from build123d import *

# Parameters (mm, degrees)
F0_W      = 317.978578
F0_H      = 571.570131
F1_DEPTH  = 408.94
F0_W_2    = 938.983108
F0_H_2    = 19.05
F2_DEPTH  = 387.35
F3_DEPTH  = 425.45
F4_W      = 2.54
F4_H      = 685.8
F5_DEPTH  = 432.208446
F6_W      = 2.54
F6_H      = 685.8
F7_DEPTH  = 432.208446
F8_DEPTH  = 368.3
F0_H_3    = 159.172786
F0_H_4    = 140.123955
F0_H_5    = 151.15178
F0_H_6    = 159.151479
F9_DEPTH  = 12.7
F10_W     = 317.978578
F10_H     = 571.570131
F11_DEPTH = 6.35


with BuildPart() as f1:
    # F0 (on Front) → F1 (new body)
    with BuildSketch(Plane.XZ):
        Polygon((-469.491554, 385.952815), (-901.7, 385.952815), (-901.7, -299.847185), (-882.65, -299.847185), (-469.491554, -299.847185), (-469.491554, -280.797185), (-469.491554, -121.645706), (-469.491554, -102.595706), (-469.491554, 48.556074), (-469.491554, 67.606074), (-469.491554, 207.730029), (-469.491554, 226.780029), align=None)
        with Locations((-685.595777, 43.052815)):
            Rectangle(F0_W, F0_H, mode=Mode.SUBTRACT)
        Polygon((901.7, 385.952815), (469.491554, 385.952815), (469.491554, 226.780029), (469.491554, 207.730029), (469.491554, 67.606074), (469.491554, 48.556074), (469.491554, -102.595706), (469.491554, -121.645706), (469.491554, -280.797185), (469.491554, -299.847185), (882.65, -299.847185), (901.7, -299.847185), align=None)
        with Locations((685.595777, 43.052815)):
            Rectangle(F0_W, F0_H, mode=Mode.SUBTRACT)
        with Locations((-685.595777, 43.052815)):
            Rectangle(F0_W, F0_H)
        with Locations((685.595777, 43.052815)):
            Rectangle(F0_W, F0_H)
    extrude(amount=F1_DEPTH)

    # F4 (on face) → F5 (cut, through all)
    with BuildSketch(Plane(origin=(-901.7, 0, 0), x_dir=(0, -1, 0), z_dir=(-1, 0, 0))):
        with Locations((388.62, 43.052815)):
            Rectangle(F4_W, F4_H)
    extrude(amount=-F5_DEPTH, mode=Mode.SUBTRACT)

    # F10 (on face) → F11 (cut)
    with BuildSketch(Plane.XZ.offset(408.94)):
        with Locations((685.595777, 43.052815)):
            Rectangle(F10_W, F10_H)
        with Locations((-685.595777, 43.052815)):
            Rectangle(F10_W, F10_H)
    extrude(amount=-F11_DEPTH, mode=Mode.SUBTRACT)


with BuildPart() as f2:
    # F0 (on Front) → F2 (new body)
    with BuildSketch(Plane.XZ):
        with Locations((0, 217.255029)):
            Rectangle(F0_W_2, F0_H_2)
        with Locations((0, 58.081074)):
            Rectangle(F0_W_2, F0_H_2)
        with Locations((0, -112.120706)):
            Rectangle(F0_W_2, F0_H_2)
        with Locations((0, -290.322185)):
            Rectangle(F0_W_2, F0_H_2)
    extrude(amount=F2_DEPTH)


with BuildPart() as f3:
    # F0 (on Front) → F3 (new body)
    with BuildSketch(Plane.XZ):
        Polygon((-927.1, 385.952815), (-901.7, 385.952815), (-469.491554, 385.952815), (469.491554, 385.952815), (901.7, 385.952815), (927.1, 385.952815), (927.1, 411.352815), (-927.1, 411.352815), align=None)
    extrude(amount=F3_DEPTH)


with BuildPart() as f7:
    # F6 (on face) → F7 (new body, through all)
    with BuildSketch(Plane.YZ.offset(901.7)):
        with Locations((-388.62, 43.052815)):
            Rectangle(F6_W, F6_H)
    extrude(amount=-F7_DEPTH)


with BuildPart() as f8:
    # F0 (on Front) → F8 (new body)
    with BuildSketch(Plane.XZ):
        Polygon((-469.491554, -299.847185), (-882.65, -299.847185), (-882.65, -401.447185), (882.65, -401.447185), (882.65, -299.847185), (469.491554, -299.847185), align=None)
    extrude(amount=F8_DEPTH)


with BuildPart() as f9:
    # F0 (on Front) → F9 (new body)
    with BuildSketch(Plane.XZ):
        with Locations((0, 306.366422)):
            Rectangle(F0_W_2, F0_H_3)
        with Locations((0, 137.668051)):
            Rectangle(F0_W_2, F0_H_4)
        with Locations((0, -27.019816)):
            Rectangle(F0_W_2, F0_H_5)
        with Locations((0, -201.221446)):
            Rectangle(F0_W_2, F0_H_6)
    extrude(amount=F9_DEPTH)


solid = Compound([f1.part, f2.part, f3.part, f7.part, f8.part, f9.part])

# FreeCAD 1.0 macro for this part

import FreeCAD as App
import Part
import Sketcher
Q = App.Units.Quantity


def add_polygon(sketch, points):
    """Adds a closed chain of lines whose ends are joined by coincident constraints."""
    first, n = sketch.GeometryCount, len(points)
    for a, b in zip(points, points[1:] + points[:1]):
        sketch.addGeometry(Part.LineSegment(App.Vector(*a, 0), App.Vector(*b, 0)), False)
    for i in range(n):
        sketch.addConstraint(Sketcher.Constraint("Coincident", first + i, 2, first + (i + 1) % n, 1))

doc = App.newDocument("Part")
body = doc.addObject("PartDesign::Body", "Body")
body.AllowCompound = True

sketch1 = body.newObject("Sketcher::SketchObject", "Sketch")
sketch1.AttachmentSupport = (doc.getObject("XZ_Plane"), [""])
sketch1.MapMode = "FlatFace"
add_polygon(sketch1, [(-469, 386), (-902, 386), (-902, -300), (-469, -300)])
add_polygon(sketch1, [(902, 386), (469, 386), (469, -300), (902, -300)])
sketch1.addConstraint(Sketcher.Constraint("Horizontal", 0))
sketch1.addConstraint(Sketcher.Constraint("Vertical", 1))
sketch1.addConstraint(Sketcher.Constraint("Horizontal", 2))
sketch1.addConstraint(Sketcher.Constraint("Vertical", 3))
sketch1.addConstraint(Sketcher.Constraint("Horizontal", 4))
sketch1.addConstraint(Sketcher.Constraint("Vertical", 5))
sketch1.addConstraint(Sketcher.Constraint("Horizontal", 6))
sketch1.addConstraint(Sketcher.Constraint("Vertical", 7))
sketch1.addConstraint(Sketcher.Constraint("Symmetric", 3, 2, 4, 2, -2))
sketch1.addConstraint(Sketcher.Constraint("Symmetric", 1, 2, 6, 2, -2))
sketch1.addConstraint(Sketcher.Constraint("DistanceY", 1, 2, 1, 1, Q("27 in")))
sketch1.addConstraint(Sketcher.Constraint("DistanceX", 1, 2, 6, 2, Q("71 in")))
sketch1.addConstraint(Sketcher.Constraint("DistanceX", 0, 2, 0, 1, Q("432.208446 mm")))
sketch1.addConstraint(Sketcher.Constraint("DistanceY", -1, 1, 0, 2, Q("385.952815 mm")))
pad1 = body.newObject("PartDesign::Pad", "Pad")
pad1.Profile = sketch1
pad1.Length = Q("16.1 in")

sketch2 = body.newObject("Sketcher::SketchObject", "Sketch001")
sketch2.AttachmentSupport = (doc.getObject("YZ_Plane"), [""])
sketch2.MapMode = "FlatFace"
sketch2.AttachmentOffset = App.Placement(App.Vector(0, 0, -35.5 * 25.4), App.Rotation())
add_polygon(sketch2, [(-387.4, 386), (-387.4, -299.8), (-389.9, -299.8), (-389.9, 386)])
sketch2.addConstraint(Sketcher.Constraint("Vertical", 0))
sketch2.addConstraint(Sketcher.Constraint("Horizontal", 1))
sketch2.addConstraint(Sketcher.Constraint("Vertical", 2))
sketch2.addConstraint(Sketcher.Constraint("Horizontal", 3))
sketch2.addConstraint(Sketcher.Constraint("DistanceY", 0, 2, 0, 1, Q("27 in")))
sketch2.addConstraint(Sketcher.Constraint("DistanceX", 1, 2, 1, 1, Q("0.1 in")))
sketch2.addConstraint(Sketcher.Constraint("DistanceX", 0, 2, -1, 1, Q("15.25 in")))
sketch2.addConstraint(Sketcher.Constraint("DistanceY", 0, 2, -1, 1, Q("299.847185 mm")))
pocket1 = body.newObject("PartDesign::Pocket", "Pocket")
pocket1.Profile = sketch2
pocket1.Length = 432.208446
pocket1.Reversed = True

sketch3 = body.newObject("Sketcher::SketchObject", "Sketch002")
sketch3.AttachmentSupport = (doc.getObject("XZ_Plane"), [""])
sketch3.MapMode = "FlatFace"
sketch3.AttachmentOffset = App.Placement(App.Vector(0, 0, 16.1 * 25.4), App.Rotation())
add_polygon(sketch3, [(527, 329), (527, -243), (845, -243), (845, 329)])
add_polygon(sketch3, [(-845, 329), (-845, -243), (-527, -243), (-527, 329)])
sketch3.addConstraint(Sketcher.Constraint("Vertical", 0))
sketch3.addConstraint(Sketcher.Constraint("Horizontal", 1))
sketch3.addConstraint(Sketcher.Constraint("Vertical", 2))
sketch3.addConstraint(Sketcher.Constraint("Horizontal", 3))
sketch3.addConstraint(Sketcher.Constraint("Vertical", 4))
sketch3.addConstraint(Sketcher.Constraint("Horizontal", 5))
sketch3.addConstraint(Sketcher.Constraint("Vertical", 6))
sketch3.addConstraint(Sketcher.Constraint("Horizontal", 7))
sketch3.addConstraint(Sketcher.Constraint("Symmetric", 1, 2, 4, 2, -2))
sketch3.addConstraint(Sketcher.Constraint("Symmetric", 3, 2, 6, 2, -2))
sketch3.addConstraint(Sketcher.Constraint("DistanceY", 0, 2, 0, 1, Q("571.570131 mm")))
sketch3.addConstraint(Sketcher.Constraint("DistanceX", 1, 1, 1, 2, Q("317.978578 mm")))
sketch3.addConstraint(Sketcher.Constraint("DistanceX", -1, 1, 0, 2, Q("526.606488 mm")))
sketch3.addConstraint(Sketcher.Constraint("DistanceY", 0, 2, -1, 1, Q("242.73225 mm")))
pocket2 = body.newObject("PartDesign::Pocket", "Pocket001")
pocket2.Profile = sketch3
pocket2.Length = Q("0.25 in")
body2 = doc.addObject("PartDesign::Body", "Body001")
body2.AllowCompound = True

sketch4 = body2.newObject("Sketcher::SketchObject", "Sketch003")
sketch4.AttachmentSupport = (doc.getObject("XZ_Plane001"), [""])
sketch4.MapMode = "FlatFace"
add_polygon(sketch4, [(-469, 227), (-469, 208), (469, 208), (469, 227)])
add_polygon(sketch4, [(-469, 68), (-469, 49), (469, 49), (469, 68)])
add_polygon(sketch4, [(-469, -103), (-469, -122), (469, -122), (469, -103)])
add_polygon(sketch4, [(-469, -281), (-469, -300), (469, -300), (469, -281)])
sketch4.addConstraint(Sketcher.Constraint("Vertical", 0))
sketch4.addConstraint(Sketcher.Constraint("Horizontal", 1))
sketch4.addConstraint(Sketcher.Constraint("Vertical", 2))
sketch4.addConstraint(Sketcher.Constraint("Horizontal", 3))
sketch4.addConstraint(Sketcher.Constraint("Vertical", 4))
sketch4.addConstraint(Sketcher.Constraint("Horizontal", 5))
sketch4.addConstraint(Sketcher.Constraint("Vertical", 6))
sketch4.addConstraint(Sketcher.Constraint("Horizontal", 7))
sketch4.addConstraint(Sketcher.Constraint("Vertical", 8))
sketch4.addConstraint(Sketcher.Constraint("Horizontal", 9))
sketch4.addConstraint(Sketcher.Constraint("Vertical", 10))
sketch4.addConstraint(Sketcher.Constraint("Horizontal", 11))
sketch4.addConstraint(Sketcher.Constraint("Vertical", 12))
sketch4.addConstraint(Sketcher.Constraint("Horizontal", 13))
sketch4.addConstraint(Sketcher.Constraint("Vertical", 14))
sketch4.addConstraint(Sketcher.Constraint("Horizontal", 15))
sketch4.addConstraint(Sketcher.Constraint("Vertical", 3, 2, 4, 2))
sketch4.addConstraint(Sketcher.Constraint("Vertical", 2, 2, 5, 2))
sketch4.addConstraint(Sketcher.Constraint("Vertical", 7, 2, 8, 2))
sketch4.addConstraint(Sketcher.Constraint("Vertical", 6, 2, 9, 2))
sketch4.addConstraint(Sketcher.Constraint("Vertical", 11, 2, 12, 2))
sketch4.addConstraint(Sketcher.Constraint("Vertical", 10, 2, 13, 2))
sketch4.addConstraint(Sketcher.Constraint("Equal", 2, 4))
sketch4.addConstraint(Sketcher.Constraint("Equal", 6, 8))
sketch4.addConstraint(Sketcher.Constraint("Equal", 10, 12))
sketch4.addConstraint(Sketcher.Constraint("DistanceY", 0, 2, 0, 1, Q("0.75 in")))
sketch4.addConstraint(Sketcher.Constraint("DistanceX", 1, 1, 1, 2, Q("938.983108 mm")))
sketch4.addConstraint(Sketcher.Constraint("DistanceY", -1, 1, 0, 2, Q("207.730029 mm")))
sketch4.addConstraint(Sketcher.Constraint("DistanceY", 8, 2, 4, 2, Q("170.20178 mm")))
sketch4.addConstraint(Sketcher.Constraint("DistanceY", 12, 2, 8, 2, Q("178.201479 mm")))
sketch4.addConstraint(Sketcher.Constraint("DistanceX", 0, 2, -1, 1, Q("469.491554 mm")))
sketch4.addConstraint(Sketcher.Constraint("DistanceY", -1, 1, 4, 2, Q("48.556074 mm")))
pad2 = body2.newObject("PartDesign::Pad", "Pad001")
pad2.Profile = sketch4
pad2.Length = Q("15.25 in")
body3 = doc.addObject("PartDesign::Body", "Body002")

sketch5 = body3.newObject("Sketcher::SketchObject", "Sketch004")
sketch5.AttachmentSupport = (doc.getObject("XZ_Plane002"), [""])
sketch5.MapMode = "FlatFace"
add_polygon(sketch5, [(-927, 386), (927, 386), (927, 411), (-927, 411)])
sketch5.addConstraint(Sketcher.Constraint("Horizontal", 0))
sketch5.addConstraint(Sketcher.Constraint("Vertical", 1))
sketch5.addConstraint(Sketcher.Constraint("Horizontal", 2))
sketch5.addConstraint(Sketcher.Constraint("Vertical", 3))
sketch5.addConstraint(Sketcher.Constraint("DistanceX", 0, 1, 0, 2, Q("73 in")))
sketch5.addConstraint(Sketcher.Constraint("DistanceY", 1, 1, 1, 2, Q("1 in")))
sketch5.addConstraint(Sketcher.Constraint("DistanceX", -1, 1, 0, 2, Q("36.5 in")))
sketch5.addConstraint(Sketcher.Constraint("DistanceY", -1, 1, 0, 2, Q("385.952815 mm")))
pad3 = body3.newObject("PartDesign::Pad", "Pad002")
pad3.Profile = sketch5
pad3.Length = Q("16.75 in")
body4 = doc.addObject("PartDesign::Body", "Body003")

sketch6 = body4.newObject("Sketcher::SketchObject", "Sketch005")
sketch6.AttachmentSupport = (doc.getObject("YZ_Plane003"), [""])
sketch6.MapMode = "FlatFace"
sketch6.AttachmentOffset = App.Placement(App.Vector(0, 0, 35.5 * 25.4), App.Rotation())
add_polygon(sketch6, [(-389.9, 386), (-389.9, -299.8), (-387.4, -299.8), (-387.4, 386)])
sketch6.addConstraint(Sketcher.Constraint("Vertical", 0))
sketch6.addConstraint(Sketcher.Constraint("Horizontal", 1))
sketch6.addConstraint(Sketcher.Constraint("Vertical", 2))
sketch6.addConstraint(Sketcher.Constraint("Horizontal", 3))
sketch6.addConstraint(Sketcher.Constraint("DistanceY", 0, 2, 0, 1, Q("27 in")))
sketch6.addConstraint(Sketcher.Constraint("DistanceX", 1, 1, 1, 2, Q("0.1 in")))
sketch6.addConstraint(Sketcher.Constraint("DistanceX", 0, 2, -1, 1, Q("15.35 in")))
sketch6.addConstraint(Sketcher.Constraint("DistanceY", 0, 2, -1, 1, Q("299.847185 mm")))
pad4 = body4.newObject("PartDesign::Pad", "Pad003")
pad4.Profile = sketch6
pad4.Length = 432.208446
pad4.Reversed = True
body5 = doc.addObject("PartDesign::Body", "Body004")

sketch7 = body5.newObject("Sketcher::SketchObject", "Sketch006")
sketch7.AttachmentSupport = (doc.getObject("XZ_Plane004"), [""])
sketch7.MapMode = "FlatFace"
add_polygon(sketch7, [(-883, -300), (-883, -401), (883, -401), (883, -300)])
sketch7.addConstraint(Sketcher.Constraint("Vertical", 0))
sketch7.addConstraint(Sketcher.Constraint("Horizontal", 1))
sketch7.addConstraint(Sketcher.Constraint("Vertical", 2))
sketch7.addConstraint(Sketcher.Constraint("Horizontal", 3))
sketch7.addConstraint(Sketcher.Constraint("DistanceY", 0, 2, 0, 1, Q("4 in")))
sketch7.addConstraint(Sketcher.Constraint("DistanceX", 1, 1, 1, 2, Q("69.5 in")))
sketch7.addConstraint(Sketcher.Constraint("DistanceX", 0, 2, -1, 1, Q("34.75 in")))
sketch7.addConstraint(Sketcher.Constraint("DistanceY", 0, 2, -1, 1, Q("401.447185 mm")))
pad5 = body5.newObject("PartDesign::Pad", "Pad004")
pad5.Profile = sketch7
pad5.Length = Q("14.5 in")
body6 = doc.addObject("PartDesign::Body", "Body005")
body6.AllowCompound = True

sketch8 = body6.newObject("Sketcher::SketchObject", "Sketch007")
sketch8.AttachmentSupport = (doc.getObject("XZ_Plane005"), [""])
sketch8.MapMode = "FlatFace"
add_polygon(sketch8, [(-469, 386), (-469, 227), (469, 227), (469, 386)])
add_polygon(sketch8, [(-469, 208), (-469, 68), (469, 68), (469, 208)])
add_polygon(sketch8, [(-469, 49), (-469, -103), (469, -103), (469, 49)])
add_polygon(sketch8, [(-469, -122), (-469, -281), (469, -281), (469, -122)])
sketch8.addConstraint(Sketcher.Constraint("Vertical", 0))
sketch8.addConstraint(Sketcher.Constraint("Horizontal", 1))
sketch8.addConstraint(Sketcher.Constraint("Vertical", 2))
sketch8.addConstraint(Sketcher.Constraint("Horizontal", 3))
sketch8.addConstraint(Sketcher.Constraint("Vertical", 4))
sketch8.addConstraint(Sketcher.Constraint("Horizontal", 5))
sketch8.addConstraint(Sketcher.Constraint("Vertical", 6))
sketch8.addConstraint(Sketcher.Constraint("Horizontal", 7))
sketch8.addConstraint(Sketcher.Constraint("Vertical", 8))
sketch8.addConstraint(Sketcher.Constraint("Horizontal", 9))
sketch8.addConstraint(Sketcher.Constraint("Vertical", 10))
sketch8.addConstraint(Sketcher.Constraint("Horizontal", 11))
sketch8.addConstraint(Sketcher.Constraint("Vertical", 12))
sketch8.addConstraint(Sketcher.Constraint("Horizontal", 13))
sketch8.addConstraint(Sketcher.Constraint("Vertical", 14))
sketch8.addConstraint(Sketcher.Constraint("Horizontal", 15))
sketch8.addConstraint(Sketcher.Constraint("Vertical", 3, 2, 4, 2))
sketch8.addConstraint(Sketcher.Constraint("Vertical", 2, 2, 5, 2))
sketch8.addConstraint(Sketcher.Constraint("Vertical", 7, 2, 8, 2))
sketch8.addConstraint(Sketcher.Constraint("Vertical", 6, 2, 9, 2))
sketch8.addConstraint(Sketcher.Constraint("Vertical", 11, 2, 12, 2))
sketch8.addConstraint(Sketcher.Constraint("Vertical", 10, 2, 13, 2))
sketch8.addConstraint(Sketcher.Constraint("DistanceY", 6, 2, 1, 2, Q("0.75 in")))
sketch8.addConstraint(Sketcher.Constraint("DistanceY", 10, 2, 5, 2, Q("0.75 in")))
sketch8.addConstraint(Sketcher.Constraint("DistanceY", 14, 2, 9, 2, Q("0.75 in")))
sketch8.addConstraint(Sketcher.Constraint("DistanceX", 1, 1, 1, 2, Q("938.983108 mm")))
sketch8.addConstraint(Sketcher.Constraint("DistanceY", 8, 2, 8, 1, Q("151.15178 mm")))
sketch8.addConstraint(Sketcher.Constraint("DistanceY", 12, 2, 12, 1, Q("159.151479 mm")))
sketch8.addConstraint(Sketcher.Constraint("DistanceY", 0, 2, 0, 1, Q("159.172786 mm")))
sketch8.addConstraint(Sketcher.Constraint("DistanceY", 4, 2, 4, 1, Q("140.123955 mm")))
sketch8.addConstraint(Sketcher.Constraint("DistanceY", -1, 1, 0, 2, Q("226.780029 mm")))
sketch8.addConstraint(Sketcher.Constraint("DistanceX", 0, 2, -1, 1, Q("469.491554 mm")))
pad6 = body6.newObject("PartDesign::Pad", "Pad005")
pad6.Profile = sketch8
pad6.Length = Q("0.5 in")

doc.recompute()
